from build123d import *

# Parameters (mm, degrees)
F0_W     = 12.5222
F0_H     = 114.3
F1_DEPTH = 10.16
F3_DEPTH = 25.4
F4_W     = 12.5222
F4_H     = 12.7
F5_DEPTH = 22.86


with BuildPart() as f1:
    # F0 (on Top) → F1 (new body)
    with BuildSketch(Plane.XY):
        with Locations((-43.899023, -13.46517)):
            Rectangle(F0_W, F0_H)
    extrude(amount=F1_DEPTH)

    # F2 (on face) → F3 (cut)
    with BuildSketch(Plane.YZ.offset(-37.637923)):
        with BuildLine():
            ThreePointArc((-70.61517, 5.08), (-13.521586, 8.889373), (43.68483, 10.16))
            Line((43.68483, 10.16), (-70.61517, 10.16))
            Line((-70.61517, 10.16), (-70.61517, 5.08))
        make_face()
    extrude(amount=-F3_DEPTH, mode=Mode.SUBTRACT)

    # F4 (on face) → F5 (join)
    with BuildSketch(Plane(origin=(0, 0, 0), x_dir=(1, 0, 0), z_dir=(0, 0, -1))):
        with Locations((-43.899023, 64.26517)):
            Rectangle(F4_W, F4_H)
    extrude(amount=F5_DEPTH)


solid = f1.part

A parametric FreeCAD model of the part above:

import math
import FreeCAD as App
import Part
import Sketcher
from FreeCAD import Vector
Q = App.Units.Quantity

doc = App.newDocument("Part")
body = doc.addObject("PartDesign::Body", "Body")

# Sketch on XY plane
sketch1 = body.newObject("Sketcher::SketchObject", "Sketch")
sketch1.AttachmentSupport = (doc.getObject("XY_Plane"), [""])
sketch1.MapMode = "FlatFace"
sketch1.addGeometry(Part.LineSegment(Vector(-50.160123, 43.68483, 0), Vector(-50.160123, -70.61517, 0)), False)
sketch1.addGeometry(Part.LineSegment(Vector(-50.160123, -70.61517, 0), Vector(-37.637923, -70.61517, 0)), False)
sketch1.addGeometry(Part.LineSegment(Vector(-37.637923, -70.61517, 0), Vector(-37.637923, 43.68483, 0)), False)
sketch1.addGeometry(Part.LineSegment(Vector(-37.637923, 43.68483, 0), Vector(-50.160123, 43.68483, 0)), False)
sketch1.addConstraint(Sketcher.Constraint("Coincident", 0, 2, 1, 1))
sketch1.addConstraint(Sketcher.Constraint("Coincident", 1, 2, 2, 1))
sketch1.addConstraint(Sketcher.Constraint("Coincident", 2, 2, 3, 1))
sketch1.addConstraint(Sketcher.Constraint("Coincident", 3, 2, 0, 1))
sketch1.addConstraint(Sketcher.Constraint("Vertical", 0))
sketch1.addConstraint(Sketcher.Constraint("Horizontal", 1))
sketch1.addConstraint(Sketcher.Constraint("Vertical", 2))
sketch1.addConstraint(Sketcher.Constraint("Horizontal", 3))
sketch1.addConstraint(Sketcher.Constraint("DistanceY", 0, 2, 0, 1, Q("4.5 in")))
sketch1.addConstraint(Sketcher.Constraint("DistanceX", 1, 1, 1, 2, Q("0.493 in")))
sketch1.addConstraint(Sketcher.Constraint("DistanceY", 0, 2, -1, 1, 70.61517))
sketch1.addConstraint(Sketcher.Constraint("DistanceX", 0, 2, -1, 1, 50.160123))
pad1 = body.newObject("PartDesign::Pad", "Pad")
pad1.Profile = sketch1
pad1.Length = Q("0.4 in")

# Sketch on YZ plane
sketch2 = body.newObject("Sketcher::SketchObject", "Sketch001")
sketch2.AttachmentSupport = (doc.getObject("YZ_Plane"), [""])
sketch2.MapMode = "FlatFace"
sketch2.AttachmentOffset = App.Placement(Vector(0, 0, -37.637923), App.Rotation())
sketch2.addGeometry(Part.ArcOfCircle(Part.Circle(Vector(43.684852, -1278.255491, 0), Vector(0, 0, 1), 1288.415491), math.radians(90.000001), math.radians(95.089608)), False)
sketch2.addGeometry(Part.LineSegment(Vector(43.68483, 10.16, 0), Vector(-70.61517, 10.16, 0)), False)
sketch2.addGeometry(Part.LineSegment(Vector(-70.61517, 10.16, 0), Vector(-70.61517, 5.08, 0)), False)
sketch2.addConstraint(Sketcher.Constraint("Coincident", 0, 1, 1, 1))
sketch2.addConstraint(Sketcher.Constraint("Coincident", 1, 2, 2, 1))
sketch2.addConstraint(Sketcher.Constraint("Coincident", 2, 2, 0, 2))
sketch2.addConstraint(Sketcher.Constraint("Horizontal", 1))
sketch2.addConstraint(Sketcher.Constraint("Vertical", 2))
sketch2.addConstraint(Sketcher.Constraint("DistanceX", 1, 2, 1, 1, Q("4.5 in")))
sketch2.addConstraint(Sketcher.Constraint("DistanceY", 2, 2, 2, 1, Q("0.2 in")))
sketch2.addConstraint(Sketcher.Constraint("DistanceY", -1, 1, 0, 1, Q("0.4 in")))
sketch2.addConstraint(Sketcher.Constraint("Radius", 0, 1288.415491))
sketch2.addConstraint(Sketcher.Constraint("DistanceX", -1, 1, 0, 3, 43.684852))
pocket1 = body.newObject("PartDesign::Pocket", "Pocket")
pocket1.Profile = sketch2
pocket1.Length = Q("1 in")

# Sketch on XY plane
sketch3 = body.newObject("Sketcher::SketchObject", "Sketch002")
sketch3.AttachmentSupport = (doc.getObject("XY_Plane"), [""])
sketch3.MapMode = "FlatFace"
sketch3.addGeometry(Part.LineSegment(Vector(-50.160123, -70.61517, 0), Vector(-50.160123, -57.91517, 0)), False)
sketch3.addGeometry(Part.LineSegment(Vector(-50.160123, -57.91517, 0), Vector(-37.637923, -57.91517, 0)), False)
sketch3.addGeometry(Part.LineSegment(Vector(-37.637923, -57.91517, 0), Vector(-37.637923, -70.61517, 0)), False)
sketch3.addGeometry(Part.LineSegment(Vector(-37.637923, -70.61517, 0), Vector(-50.160123, -70.61517, 0)), False)
sketch3.addConstraint(Sketcher.Constraint("Coincident", 0, 2, 1, 1))
sketch3.addConstraint(Sketcher.Constraint("Coincident", 1, 2, 2, 1))
sketch3.addConstraint(Sketcher.Constraint("Coincident", 2, 2, 3, 1))
sketch3.addConstraint(Sketcher.Constraint("Coincident", 3, 2, 0, 1))
sketch3.addConstraint(Sketcher.Constraint("Vertical", 0))
sketch3.addConstraint(Sketcher.Constraint("Horizontal", 1))
sketch3.addConstraint(Sketcher.Constraint("Vertical", 2))
sketch3.addConstraint(Sketcher.Constraint("Horizontal", 3))
sketch3.addConstraint(Sketcher.Constraint("DistanceY", 0, 1, 0, 2, Q("0.5 in")))
sketch3.addConstraint(Sketcher.Constraint("DistanceX", 1, 1, 1, 2, Q("0.493 in")))
sketch3.addConstraint(Sketcher.Constraint("DistanceY", 0, 2, -1, 1, 57.91517))
sketch3.addConstraint(Sketcher.Constraint("DistanceX", 0, 2, -1, 1, 50.160123))
pad2 = body.newObject("PartDesign::Pad", "Pad001")
pad2.Profile = sketch3
pad2.Length = Q("0.9 in")
pad2.Reversed = True

doc.recompute()
